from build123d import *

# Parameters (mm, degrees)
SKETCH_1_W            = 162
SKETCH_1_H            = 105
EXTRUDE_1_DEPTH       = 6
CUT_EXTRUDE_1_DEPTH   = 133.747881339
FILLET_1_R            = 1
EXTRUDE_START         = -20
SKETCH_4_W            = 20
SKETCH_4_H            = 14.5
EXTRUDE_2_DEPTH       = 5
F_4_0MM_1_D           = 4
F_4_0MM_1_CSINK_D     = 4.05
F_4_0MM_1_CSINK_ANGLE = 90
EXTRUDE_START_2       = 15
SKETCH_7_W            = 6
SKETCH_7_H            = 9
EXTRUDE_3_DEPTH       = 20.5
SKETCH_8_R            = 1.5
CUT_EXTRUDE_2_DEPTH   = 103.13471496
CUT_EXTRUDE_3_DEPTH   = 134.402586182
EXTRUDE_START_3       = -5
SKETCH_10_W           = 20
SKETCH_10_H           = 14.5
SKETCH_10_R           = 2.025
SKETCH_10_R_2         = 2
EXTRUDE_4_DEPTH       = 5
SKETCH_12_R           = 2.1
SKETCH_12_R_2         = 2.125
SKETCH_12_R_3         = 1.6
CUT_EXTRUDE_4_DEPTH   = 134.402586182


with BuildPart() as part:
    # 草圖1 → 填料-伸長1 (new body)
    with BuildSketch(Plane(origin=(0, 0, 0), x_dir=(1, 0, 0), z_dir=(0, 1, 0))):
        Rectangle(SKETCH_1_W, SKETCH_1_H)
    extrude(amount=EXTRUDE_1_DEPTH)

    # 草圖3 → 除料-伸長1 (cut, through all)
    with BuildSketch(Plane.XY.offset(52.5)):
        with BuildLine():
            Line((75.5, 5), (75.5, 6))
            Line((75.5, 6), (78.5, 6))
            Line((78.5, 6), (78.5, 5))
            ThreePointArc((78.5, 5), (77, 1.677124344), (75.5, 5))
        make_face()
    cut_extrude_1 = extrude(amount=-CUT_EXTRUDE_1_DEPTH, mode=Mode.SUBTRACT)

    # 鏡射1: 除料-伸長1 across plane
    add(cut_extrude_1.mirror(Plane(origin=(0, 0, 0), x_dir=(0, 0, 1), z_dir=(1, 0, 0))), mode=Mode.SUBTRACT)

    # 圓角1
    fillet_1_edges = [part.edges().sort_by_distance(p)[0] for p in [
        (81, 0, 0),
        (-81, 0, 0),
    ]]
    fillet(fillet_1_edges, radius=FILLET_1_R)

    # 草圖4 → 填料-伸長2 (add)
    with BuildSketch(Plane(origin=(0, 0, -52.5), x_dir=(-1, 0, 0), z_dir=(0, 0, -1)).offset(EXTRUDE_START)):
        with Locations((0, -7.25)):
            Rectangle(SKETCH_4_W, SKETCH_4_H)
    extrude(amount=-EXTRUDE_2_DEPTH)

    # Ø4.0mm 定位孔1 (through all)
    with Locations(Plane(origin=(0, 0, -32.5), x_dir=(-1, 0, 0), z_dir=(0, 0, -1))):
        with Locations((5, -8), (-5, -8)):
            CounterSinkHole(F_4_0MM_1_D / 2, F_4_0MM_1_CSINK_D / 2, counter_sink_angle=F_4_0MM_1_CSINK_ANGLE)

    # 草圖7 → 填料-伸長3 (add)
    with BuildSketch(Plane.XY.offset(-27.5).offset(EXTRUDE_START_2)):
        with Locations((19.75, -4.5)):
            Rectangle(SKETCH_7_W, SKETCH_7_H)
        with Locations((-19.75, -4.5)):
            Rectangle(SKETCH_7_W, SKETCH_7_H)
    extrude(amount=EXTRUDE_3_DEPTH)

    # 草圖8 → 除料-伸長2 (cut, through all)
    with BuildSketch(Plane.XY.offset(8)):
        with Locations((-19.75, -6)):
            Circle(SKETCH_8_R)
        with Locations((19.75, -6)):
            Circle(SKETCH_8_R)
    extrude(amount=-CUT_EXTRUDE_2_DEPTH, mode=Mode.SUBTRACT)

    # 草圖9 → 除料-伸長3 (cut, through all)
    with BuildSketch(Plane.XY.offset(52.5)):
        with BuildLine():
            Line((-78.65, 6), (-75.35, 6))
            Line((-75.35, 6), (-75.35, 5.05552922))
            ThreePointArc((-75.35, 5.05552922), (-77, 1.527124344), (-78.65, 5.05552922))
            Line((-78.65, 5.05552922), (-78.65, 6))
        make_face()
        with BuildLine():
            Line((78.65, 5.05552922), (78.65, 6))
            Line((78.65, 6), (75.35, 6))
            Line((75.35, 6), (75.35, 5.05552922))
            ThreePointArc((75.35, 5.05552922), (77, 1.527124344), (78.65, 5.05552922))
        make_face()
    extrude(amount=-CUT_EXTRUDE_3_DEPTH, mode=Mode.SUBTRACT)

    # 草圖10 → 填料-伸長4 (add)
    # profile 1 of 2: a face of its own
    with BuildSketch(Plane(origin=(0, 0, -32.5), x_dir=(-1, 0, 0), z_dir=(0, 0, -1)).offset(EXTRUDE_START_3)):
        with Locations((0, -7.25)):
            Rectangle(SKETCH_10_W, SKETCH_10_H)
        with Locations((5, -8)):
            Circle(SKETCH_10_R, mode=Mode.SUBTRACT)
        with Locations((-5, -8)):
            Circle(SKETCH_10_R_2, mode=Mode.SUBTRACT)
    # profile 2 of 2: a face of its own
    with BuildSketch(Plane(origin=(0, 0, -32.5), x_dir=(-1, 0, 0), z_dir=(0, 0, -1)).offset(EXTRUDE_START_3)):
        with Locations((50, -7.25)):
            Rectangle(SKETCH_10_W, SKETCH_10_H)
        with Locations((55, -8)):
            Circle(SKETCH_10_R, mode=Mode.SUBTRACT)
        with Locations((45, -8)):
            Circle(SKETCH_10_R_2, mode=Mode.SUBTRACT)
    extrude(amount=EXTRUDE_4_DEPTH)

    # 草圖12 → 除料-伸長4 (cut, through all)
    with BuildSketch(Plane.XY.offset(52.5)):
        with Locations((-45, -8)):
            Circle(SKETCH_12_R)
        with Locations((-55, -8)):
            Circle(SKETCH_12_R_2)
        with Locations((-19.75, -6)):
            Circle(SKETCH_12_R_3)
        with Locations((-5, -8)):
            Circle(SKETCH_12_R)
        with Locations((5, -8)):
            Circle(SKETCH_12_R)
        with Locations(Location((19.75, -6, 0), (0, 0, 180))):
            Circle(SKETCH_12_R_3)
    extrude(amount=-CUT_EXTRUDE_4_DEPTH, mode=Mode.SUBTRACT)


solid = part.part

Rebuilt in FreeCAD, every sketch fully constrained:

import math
import FreeCAD as App
import Part
import Sketcher
Q = App.Units.Quantity


def edges_at(feature, points):
    """Names of the edges that pass closest to the given points."""
    edges = feature.Shape.Edges
    near = lambda p: min(range(len(edges)), key=lambda i: edges[i].distToShape(Part.Vertex(*p))[0])
    return sorted({f"Edge{near(p) + 1}" for p in points})

doc = App.newDocument("Part")
body = doc.addObject("PartDesign::Body", "Body")

# Sketch on XZ plane
sketch1 = body.newObject("Sketcher::SketchObject", "Sketch")
sketch1.AttachmentSupport = (doc.getObject("XZ_Plane"), [""])
sketch1.MapMode = "FlatFace"
sketch1.addGeometry(Part.LineSegment(App.Vector(-81, -52.5, 0), App.Vector(-81, 52.5, 0)), False)
sketch1.addGeometry(Part.LineSegment(App.Vector(-81, 52.5, 0), App.Vector(81, 52.5, 0)), False)
sketch1.addGeometry(Part.LineSegment(App.Vector(81, 52.5, 0), App.Vector(81, -52.5, 0)), False)
sketch1.addGeometry(Part.LineSegment(App.Vector(81, -52.5, 0), App.Vector(-81, -52.5, 0)), False)
sketch1.addConstraint(Sketcher.Constraint("Coincident", 0, 2, 1, 1))
sketch1.addConstraint(Sketcher.Constraint("Coincident", 1, 2, 2, 1))
sketch1.addConstraint(Sketcher.Constraint("Coincident", 2, 2, 3, 1))
sketch1.addConstraint(Sketcher.Constraint("Coincident", 3, 2, 0, 1))
sketch1.addConstraint(Sketcher.Constraint("Vertical", 0))
sketch1.addConstraint(Sketcher.Constraint("Horizontal", 1))
sketch1.addConstraint(Sketcher.Constraint("Vertical", 2))
sketch1.addConstraint(Sketcher.Constraint("Horizontal", 3))
sketch1.addConstraint(Sketcher.Constraint("Symmetric", 0, 2, 2, 2, -1, 1))
sketch1.addConstraint(Sketcher.Constraint("DistanceX", 1, 1, 1, 2, Q("162 mm")))
sketch1.addConstraint(Sketcher.Constraint("DistanceY", 0, 1, 0, 2, Q("105 mm")))
pad1 = body.newObject("PartDesign::Pad", "Pad")
pad1.Profile = sketch1
pad1.Length = 6
pad1.Reversed = True

# Sketch on XY plane
sketch2 = body.newObject("Sketcher::SketchObject", "Sketch001")
sketch2.AttachmentSupport = (doc.getObject("XY_Plane"), [""])
sketch2.MapMode = "FlatFace"
sketch2.AttachmentOffset = App.Placement(App.Vector(0, 0, 52.5), App.Rotation())
sketch2.addGeometry(Part.LineSegment(App.Vector(75.5, 6, 0), App.Vector(75.5, 5, 0)), False)
sketch2.addGeometry(Part.ArcOfCircle(Part.Circle(App.Vector(77, 3.677124, 0), App.Vector(0, 0, 1), 2), math.radians(138.590378), math.radians(401.409622)), False)
sketch2.addGeometry(Part.LineSegment(App.Vector(78.5, 5, 0), App.Vector(78.5, 6, 0)), False)
sketch2.addGeometry(Part.LineSegment(App.Vector(78.5, 6, 0), App.Vector(75.5, 6, 0)), False)
sketch2.addConstraint(Sketcher.Constraint("Coincident", 0, 2, 1, 1))
sketch2.addConstraint(Sketcher.Constraint("Coincident", 1, 2, 2, 1))
sketch2.addConstraint(Sketcher.Constraint("Coincident", 2, 2, 3, 1))
sketch2.addConstraint(Sketcher.Constraint("Coincident", 3, 2, 0, 1))
sketch2.addConstraint(Sketcher.Constraint("Vertical", 0))
sketch2.addConstraint(Sketcher.Constraint("Vertical", 2))
sketch2.addConstraint(Sketcher.Constraint("Horizontal", 3))
sketch2.addConstraint(Sketcher.Constraint("Horizontal", 0, 2, 1, 2))
sketch2.addConstraint(Sketcher.Constraint("Radius", 1, Q("2 mm")))
sketch2.addConstraint(Sketcher.Constraint("DistanceX", 3, 2, 3, 1, Q("3 mm")))
sketch2.addConstraint(Sketcher.Constraint("DistanceY", 0, 2, 0, 1, Q("1 mm")))
sketch2.addConstraint(Sketcher.Constraint("DistanceX", -1, 1, 1, 3, Q("77 mm")))
sketch2.addConstraint(Sketcher.Constraint("DistanceY", -1, 1, 0, 2, Q("5 mm")))
pocket1 = body.newObject("PartDesign::Pocket", "Pocket")
pocket1.Profile = sketch2
pocket1.Type = "ThroughAll"
doc.recompute()

mirrored = body.newObject("PartDesign::Mirrored", "Mirrored")
mirrored.Originals = [pocket1]
mirrored.MirrorPlane = (doc.getObject("YZ_Plane"), [""])
body.Tip = mirrored
doc.recompute()

fillet = body.newObject("PartDesign::Fillet", "Fillet")
fillet.Base = (mirrored, edges_at(mirrored, [(81, 0, 0), (-81, 0, 0)]))
fillet.Radius = 1

# Sketch on XY plane
sketch3 = body.newObject("Sketcher::SketchObject", "Sketch002")
sketch3.AttachmentSupport = (doc.getObject("XY_Plane"), [""])
sketch3.MapMode = "FlatFace"
sketch3.AttachmentOffset = App.Placement(App.Vector(0, 0, -32.5), App.Rotation())
sketch3.addGeometry(Part.LineSegment(App.Vector(10, 0, 0), App.Vector(10, -14.5, 0)), False)
sketch3.addGeometry(Part.LineSegment(App.Vector(10, -14.5, 0), App.Vector(-10, -14.5, 0)), False)
sketch3.addGeometry(Part.LineSegment(App.Vector(-10, -14.5, 0), App.Vector(-10, 0, 0)), False)
sketch3.addGeometry(Part.LineSegment(App.Vector(-10, 0, 0), App.Vector(10, 0, 0)), False)
sketch3.addConstraint(Sketcher.Constraint("Coincident", 0, 2, 1, 1))
sketch3.addConstraint(Sketcher.Constraint("Coincident", 1, 2, 2, 1))
sketch3.addConstraint(Sketcher.Constraint("Coincident", 2, 2, 3, 1))
sketch3.addConstraint(Sketcher.Constraint("Coincident", 3, 2, 0, 1))
sketch3.addConstraint(Sketcher.Constraint("Vertical", 0))
sketch3.addConstraint(Sketcher.Constraint("Horizontal", 1))
sketch3.addConstraint(Sketcher.Constraint("Vertical", 2))
sketch3.addConstraint(Sketcher.Constraint("Horizontal", 3))
sketch3.addConstraint(Sketcher.Constraint("Symmetric", 2, 2, 3, 2, -1, 1))
sketch3.addConstraint(Sketcher.Constraint("DistanceX", 1, 2, 1, 1, Q("20 mm")))
sketch3.addConstraint(Sketcher.Constraint("DistanceY", 0, 2, 0, 1, Q("14.5 mm")))
pad2 = body.newObject("PartDesign::Pad", "Pad001")
pad2.Profile = sketch3
pad2.Length = 5

# Sketch on XY plane
sketch4 = body.newObject("Sketcher::SketchObject", "Sketch003")
sketch4.AttachmentSupport = (doc.getObject("XY_Plane"), [""])
sketch4.MapMode = "FlatFace"
sketch4.AttachmentOffset = App.Placement(App.Vector(0, 0, -32.5), App.Rotation())
sketch4.addGeometry(Part.Circle(App.Vector(-5, -8, 0), App.Vector(0, 0, 1), 2), False)
sketch4.addGeometry(Part.Circle(App.Vector(5, -8, 0), App.Vector(0, 0, 1), 2), False)
sketch4.addConstraint(Sketcher.Constraint("Equal", 0, 1))
sketch4.addConstraint(Sketcher.Constraint("Symmetric", 0, 3, 1, 3, -2))
sketch4.addConstraint(Sketcher.Constraint("Diameter", 0, Q("4 mm")))
sketch4.addConstraint(Sketcher.Constraint("DistanceX", 0, 3, -1, 1, Q("5 mm")))
sketch4.addConstraint(Sketcher.Constraint("DistanceY", 0, 3, -1, 1, Q("8 mm")))
doc.recompute()
hole = body.newObject("PartDesign::Hole", "Hole")
hole.Profile = sketch4
hole.ThreadType = "None"
hole.Diameter = 4
hole.DepthType = "ThroughAll"
hole.HoleCutType = "Countersink"
hole.HoleCutDiameter = 4.05
hole.HoleCutCountersinkAngle = 90
hole.Reversed = True

# Sketch on XY plane
sketch5 = body.newObject("Sketcher::SketchObject", "Sketch004")
sketch5.AttachmentSupport = (doc.getObject("XY_Plane"), [""])
sketch5.MapMode = "FlatFace"
sketch5.AttachmentOffset = App.Placement(App.Vector(0, 0, -12.5), App.Rotation())
sketch5.addGeometry(Part.LineSegment(App.Vector(16.75, 0, 0), App.Vector(16.75, -9, 0)), False)
sketch5.addGeometry(Part.LineSegment(App.Vector(16.75, -9, 0), App.Vector(22.75, -9, 0)), False)
sketch5.addGeometry(Part.LineSegment(App.Vector(22.75, -9, 0), App.Vector(22.75, 0, 0)), False)
sketch5.addGeometry(Part.LineSegment(App.Vector(22.75, 0, 0), App.Vector(16.75, 0, 0)), False)
sketch5.addGeometry(Part.LineSegment(App.Vector(-22.75, 0, 0), App.Vector(-22.75, -9, 0)), False)
sketch5.addGeometry(Part.LineSegment(App.Vector(-22.75, -9, 0), App.Vector(-16.75, -9, 0)), False)
sketch5.addGeometry(Part.LineSegment(App.Vector(-16.75, -9, 0), App.Vector(-16.75, 0, 0)), False)
sketch5.addGeometry(Part.LineSegment(App.Vector(-16.75, 0, 0), App.Vector(-22.75, 0, 0)), False)
sketch5.addConstraint(Sketcher.Constraint("Coincident", 0, 2, 1, 1))
sketch5.addConstraint(Sketcher.Constraint("Coincident", 1, 2, 2, 1))
sketch5.addConstraint(Sketcher.Constraint("Coincident", 2, 2, 3, 1))
sketch5.addConstraint(Sketcher.Constraint("Coincident", 3, 2, 0, 1))
sketch5.addConstraint(Sketcher.Constraint("Coincident", 4, 2, 5, 1))
sketch5.addConstraint(Sketcher.Constraint("Coincident", 5, 2, 6, 1))
sketch5.addConstraint(Sketcher.Constraint("Coincident", 6, 2, 7, 1))
sketch5.addConstraint(Sketcher.Constraint("Coincident", 7, 2, 4, 1))
sketch5.addConstraint(Sketcher.Constraint("Vertical", 0))
sketch5.addConstraint(Sketcher.Constraint("Horizontal", 1))
sketch5.addConstraint(Sketcher.Constraint("Vertical", 2))
sketch5.addConstraint(Sketcher.Constraint("Horizontal", 3))
sketch5.addConstraint(Sketcher.Constraint("Vertical", 4))
sketch5.addConstraint(Sketcher.Constraint("Horizontal", 5))
sketch5.addConstraint(Sketcher.Constraint("Vertical", 6))
sketch5.addConstraint(Sketcher.Constraint("Horizontal", 7))
sketch5.addConstraint(Sketcher.Constraint("Symmetric", 3, 2, 6, 2, -1, 1))
sketch5.addConstraint(Sketcher.Constraint("Symmetric", 1, 2, 4, 2, -2))
sketch5.addConstraint(Sketcher.Constraint("PointOnObject", 2, 2, -1))
sketch5.addConstraint(Sketcher.Constraint("DistanceX", 1, 1, 1, 2, Q("6 mm")))
sketch5.addConstraint(Sketcher.Constraint("DistanceY", 0, 2, 0, 1, Q("9 mm")))
sketch5.addConstraint(Sketcher.Constraint("DistanceX", 4, 2, 0, 2, Q("39.5 mm")))
pad3 = body.newObject("PartDesign::Pad", "Pad002")
pad3.Profile = sketch5
pad3.Length = 20.5

# Sketch on XY plane
sketch6 = body.newObject("Sketcher::SketchObject", "Sketch005")
sketch6.AttachmentSupport = (doc.getObject("XY_Plane"), [""])
sketch6.MapMode = "FlatFace"
sketch6.AttachmentOffset = App.Placement(App.Vector(0, 0, 8), App.Rotation())
sketch6.addGeometry(Part.Circle(App.Vector(-19.75, -6, 0), App.Vector(0, 0, 1), 1.5), False)
sketch6.addGeometry(Part.Circle(App.Vector(19.75, -6, 0), App.Vector(0, 0, 1), 1.5), False)
sketch6.addConstraint(Sketcher.Constraint("Equal", 0, 1))
sketch6.addConstraint(Sketcher.Constraint("Symmetric", 0, 3, 1, 3, -2))
sketch6.addConstraint(Sketcher.Constraint("Diameter", 0, Q("3 mm")))
sketch6.addConstraint(Sketcher.Constraint("DistanceY", 0, 3, -1, 1, Q("6 mm")))
sketch6.addConstraint(Sketcher.Constraint("DistanceX", 0, 3, 1, 3, Q("39.5 mm")))
pocket2 = body.newObject("PartDesign::Pocket", "Pocket001")
pocket2.Profile = sketch6
pocket2.Type = "ThroughAll"

# Sketch on XY plane
sketch7 = body.newObject("Sketcher::SketchObject", "Sketch006")
sketch7.AttachmentSupport = (doc.getObject("XY_Plane"), [""])
sketch7.MapMode = "FlatFace"
sketch7.AttachmentOffset = App.Placement(App.Vector(0, 0, 52.5), App.Rotation())
sketch7.addGeometry(Part.LineSegment(App.Vector(-75.35, 6, 0), App.Vector(-78.65, 6, 0)), False)
sketch7.addGeometry(Part.LineSegment(App.Vector(-78.65, 6, 0), App.Vector(-78.65, 5.055529, 0)), False)
sketch7.addGeometry(Part.ArcOfCircle(Part.Circle(App.Vector(-77, 3.677124, 0), App.Vector(0, 0, 1), 2.15), math.radians(140.124723), math.radians(399.875277)), False)
sketch7.addGeometry(Part.LineSegment(App.Vector(-75.35, 5.055529, 0), App.Vector(-75.35, 6, 0)), False)
sketch7.addGeometry(Part.LineSegment(App.Vector(78.65, 5.055529, 0), App.Vector(78.65, 6, 0)), False)
sketch7.addGeometry(Part.LineSegment(App.Vector(78.65, 6, 0), App.Vector(75.35, 6, 0)), False)
sketch7.addGeometry(Part.LineSegment(App.Vector(75.35, 6, 0), App.Vector(75.35, 5.055529, 0)), False)
sketch7.addGeometry(Part.ArcOfCircle(Part.Circle(App.Vector(77, 3.677124, 0), App.Vector(0, 0, 1), 2.15), math.radians(140.124723), math.radians(399.875277)), False)
sketch7.addConstraint(Sketcher.Constraint("Coincident", 0, 2, 1, 1))
sketch7.addConstraint(Sketcher.Constraint("Coincident", 1, 2, 2, 1))
sketch7.addConstraint(Sketcher.Constraint("Coincident", 2, 2, 3, 1))
sketch7.addConstraint(Sketcher.Constraint("Coincident", 3, 2, 0, 1))
sketch7.addConstraint(Sketcher.Constraint("Coincident", 4, 2, 5, 1))
sketch7.addConstraint(Sketcher.Constraint("Coincident", 5, 2, 6, 1))
sketch7.addConstraint(Sketcher.Constraint("Coincident", 6, 2, 7, 1))
sketch7.addConstraint(Sketcher.Constraint("Coincident", 7, 2, 4, 1))
sketch7.addConstraint(Sketcher.Constraint("Horizontal", 0))
sketch7.addConstraint(Sketcher.Constraint("Vertical", 1))
sketch7.addConstraint(Sketcher.Constraint("Vertical", 3))
sketch7.addConstraint(Sketcher.Constraint("Vertical", 4))
sketch7.addConstraint(Sketcher.Constraint("Horizontal", 5))
sketch7.addConstraint(Sketcher.Constraint("Vertical", 6))
sketch7.addConstraint(Sketcher.Constraint("Equal", 2, 7))
sketch7.addConstraint(Sketcher.Constraint("Symmetric", 2, 3, 7, 3, -2))
sketch7.addConstraint(Sketcher.Constraint("Symmetric", 0, 2, 4, 2, -2))
sketch7.addConstraint(Sketcher.Constraint("Horizontal", 1, 2, 2, 2))
sketch7.addConstraint(Sketcher.Constraint("Horizontal", 2, 2, 6, 2))
sketch7.addConstraint(Sketcher.Constraint("Radius", 2, Q("2.15 mm")))
sketch7.addConstraint(Sketcher.Constraint("DistanceX", 0, 2, 0, 1, Q("3.3 mm")))
sketch7.addConstraint(Sketcher.Constraint("DistanceX", 2, 3, -1, 1, Q("77 mm")))
sketch7.addConstraint(Sketcher.Constraint("DistanceY", -1, 1, 0, 2, Q("6 mm")))
sketch7.addConstraint(Sketcher.Constraint("DistanceY", 1, 2, 1, 1, Q("0.944471 mm")))
pocket3 = body.newObject("PartDesign::Pocket", "Pocket002")
pocket3.Profile = sketch7
pocket3.Type = "ThroughAll"

# Sketch on XY plane
sketch8 = body.newObject("Sketcher::SketchObject", "Sketch007")
sketch8.AttachmentSupport = (doc.getObject("XY_Plane"), [""])
sketch8.MapMode = "FlatFace"
sketch8.AttachmentOffset = App.Placement(App.Vector(0, 0, -27.5), App.Rotation())
sketch8.addGeometry(Part.LineSegment(App.Vector(10, 0, 0), App.Vector(10, -14.5, 0)), False)
sketch8.addGeometry(Part.LineSegment(App.Vector(10, -14.5, 0), App.Vector(-10, -14.5, 0)), False)
sketch8.addGeometry(Part.LineSegment(App.Vector(-10, -14.5, 0), App.Vector(-10, 0, 0)), False)
sketch8.addGeometry(Part.LineSegment(App.Vector(-10, 0, 0), App.Vector(10, 0, 0)), False)
sketch8.addGeometry(Part.Circle(App.Vector(5, -8, 0), App.Vector(0, 0, 1), 2), False)
sketch8.addGeometry(Part.Circle(App.Vector(-5, -8, 0), App.Vector(0, 0, 1), 2.025), False)
sketch8.addGeometry(Part.LineSegment(App.Vector(-40, 0, 0), App.Vector(-40, -14.5, 0)), False)
sketch8.addGeometry(Part.LineSegment(App.Vector(-40, -14.5, 0), App.Vector(-60, -14.5, 0)), False)
sketch8.addGeometry(Part.LineSegment(App.Vector(-60, -14.5, 0), App.Vector(-60, 0, 0)), False)
sketch8.addGeometry(Part.LineSegment(App.Vector(-60, 0, 0), App.Vector(-40, 0, 0)), False)
sketch8.addGeometry(Part.Circle(App.Vector(-45, -8, 0), App.Vector(0, 0, 1), 2), False)
sketch8.addGeometry(Part.Circle(App.Vector(-55, -8, 0), App.Vector(0, 0, 1), 2.025), False)
sketch8.addConstraint(Sketcher.Constraint("Coincident", 0, 2, 1, 1))
sketch8.addConstraint(Sketcher.Constraint("Coincident", 1, 2, 2, 1))
sketch8.addConstraint(Sketcher.Constraint("Coincident", 2, 2, 3, 1))
sketch8.addConstraint(Sketcher.Constraint("Coincident", 3, 2, 0, 1))
sketch8.addConstraint(Sketcher.Constraint("Coincident", 6, 2, 7, 1))
sketch8.addConstraint(Sketcher.Constraint("Coincident", 7, 2, 8, 1))
sketch8.addConstraint(Sketcher.Constraint("Coincident", 8, 2, 9, 1))
sketch8.addConstraint(Sketcher.Constraint("Coincident", 9, 2, 6, 1))
sketch8.addConstraint(Sketcher.Constraint("Vertical", 0))
sketch8.addConstraint(Sketcher.Constraint("Horizontal", 1))
sketch8.addConstraint(Sketcher.Constraint("Vertical", 2))
sketch8.addConstraint(Sketcher.Constraint("Horizontal", 3))
sketch8.addConstraint(Sketcher.Constraint("Vertical", 6))
sketch8.addConstraint(Sketcher.Constraint("Horizontal", 7))
sketch8.addConstraint(Sketcher.Constraint("Vertical", 8))
sketch8.addConstraint(Sketcher.Constraint("Horizontal", 9))
sketch8.addConstraint(Sketcher.Constraint("Equal", 4, 10))
sketch8.addConstraint(Sketcher.Constraint("Equal", 5, 11))
sketch8.addConstraint(Sketcher.Constraint("Symmetric", 2, 2, 3, 2, -1, 1))
sketch8.addConstraint(Sketcher.Constraint("Symmetric", 4, 3, 5, 3, -2))
sketch8.addConstraint(Sketcher.Constraint("PointOnObject", 8, 2, -1))
sketch8.addConstraint(Sketcher.Constraint("Horizontal", 5, 3, 10, 3))
sketch8.addConstraint(Sketcher.Constraint("Horizontal", 10, 3, 11, 3))
sketch8.addConstraint(Sketcher.Constraint("Horizontal", 1, 2, 6, 2))
sketch8.addConstraint(Sketcher.Constraint("Equal", 3, 7))
sketch8.addConstraint(Sketcher.Constraint("Diameter", 4, Q("4 mm")))
sketch8.addConstraint(Sketcher.Constraint("Diameter", 5, Q("4.05 mm")))
sketch8.addConstraint(Sketcher.Constraint("DistanceX", 1, 2, 1, 1, Q("20 mm")))
sketch8.addConstraint(Sketcher.Constraint("DistanceY", 0, 2, 0, 1, Q("14.5 mm")))
sketch8.addConstraint(Sketcher.Constraint("DistanceX", -1, 1, 4, 3, Q("5 mm")))
sketch8.addConstraint(Sketcher.Constraint("DistanceY", 4, 3, -1, 1, Q("8 mm")))
sketch8.addConstraint(Sketcher.Constraint("DistanceX", 10, 3, -1, 1, Q("45 mm")))
sketch8.addConstraint(Sketcher.Constraint("DistanceX", 11, 3, -1, 1, Q("55 mm")))
sketch8.addConstraint(Sketcher.Constraint("DistanceX", 6, 2, -1, 1, Q("40 mm")))
pad4 = body.newObject("PartDesign::Pad", "Pad003")
pad4.Profile = sketch8
pad4.Length = 5
pad4.Reversed = True

# Sketch on XY plane
sketch9 = body.newObject("Sketcher::SketchObject", "Sketch008")
sketch9.AttachmentSupport = (doc.getObject("XY_Plane"), [""])
sketch9.MapMode = "FlatFace"
sketch9.AttachmentOffset = App.Placement(App.Vector(0, 0, 52.5), App.Rotation())
sketch9.addGeometry(Part.Circle(App.Vector(-45, -8, 0), App.Vector(0, 0, 1), 2.1), False)
sketch9.addGeometry(Part.Circle(App.Vector(-55, -8, 0), App.Vector(0, 0, 1), 2.125), False)
sketch9.addGeometry(Part.Circle(App.Vector(-19.75, -6, 0), App.Vector(0, 0, 1), 1.6), False)
sketch9.addGeometry(Part.Circle(App.Vector(-5, -8, 0), App.Vector(0, 0, 1), 2.1), False)
sketch9.addGeometry(Part.Circle(App.Vector(5, -8, 0), App.Vector(0, 0, 1), 2.1), False)
sketch9.addGeometry(Part.Circle(App.Vector(19.75, -6, 0), App.Vector(0, 0, 1), 1.6), False)
sketch9.addConstraint(Sketcher.Constraint("Equal", 0, 3))
sketch9.addConstraint(Sketcher.Constraint("Equal", 3, 4))
sketch9.addConstraint(Sketcher.Constraint("Equal", 2, 5))
sketch9.addConstraint(Sketcher.Constraint("Symmetric", 3, 3, 4, 3, -2))
sketch9.addConstraint(Sketcher.Constraint("Symmetric", 2, 3, 5, 3, -2))
sketch9.addConstraint(Sketcher.Constraint("Horizontal", 0, 3, 1, 3))
sketch9.addConstraint(Sketcher.Constraint("Horizontal", 1, 3, 3, 3))
sketch9.addConstraint(Sketcher.Constraint("Diameter", 0, Q("4.2 mm")))
sketch9.addConstraint(Sketcher.Constraint("Diameter", 2, Q("3.2 mm")))
sketch9.addConstraint(Sketcher.Constraint("Diameter", 1, Q("4.25 mm")))
sketch9.addConstraint(Sketcher.Constraint("DistanceX", 0, 3, -1, 1, Q("45 mm")))
sketch9.addConstraint(Sketcher.Constraint("DistanceY", 0, 3, -1, 1, Q("8 mm")))
sketch9.addConstraint(Sketcher.Constraint("DistanceX", 1, 3, -1, 1, Q("55 mm")))
sketch9.addConstraint(Sketcher.Constraint("DistanceY", 2, 3, -1, 1, Q("6 mm")))
sketch9.addConstraint(Sketcher.Constraint("DistanceX", 3, 3, -1, 1, Q("5 mm")))
sketch9.addConstraint(Sketcher.Constraint("DistanceX", 2, 3, 5, 3, Q("39.5 mm")))
pocket4 = body.newObject("PartDesign::Pocket", "Pocket003")
pocket4.Profile = sketch9
pocket4.Type = "ThroughAll"

doc.recompute()
